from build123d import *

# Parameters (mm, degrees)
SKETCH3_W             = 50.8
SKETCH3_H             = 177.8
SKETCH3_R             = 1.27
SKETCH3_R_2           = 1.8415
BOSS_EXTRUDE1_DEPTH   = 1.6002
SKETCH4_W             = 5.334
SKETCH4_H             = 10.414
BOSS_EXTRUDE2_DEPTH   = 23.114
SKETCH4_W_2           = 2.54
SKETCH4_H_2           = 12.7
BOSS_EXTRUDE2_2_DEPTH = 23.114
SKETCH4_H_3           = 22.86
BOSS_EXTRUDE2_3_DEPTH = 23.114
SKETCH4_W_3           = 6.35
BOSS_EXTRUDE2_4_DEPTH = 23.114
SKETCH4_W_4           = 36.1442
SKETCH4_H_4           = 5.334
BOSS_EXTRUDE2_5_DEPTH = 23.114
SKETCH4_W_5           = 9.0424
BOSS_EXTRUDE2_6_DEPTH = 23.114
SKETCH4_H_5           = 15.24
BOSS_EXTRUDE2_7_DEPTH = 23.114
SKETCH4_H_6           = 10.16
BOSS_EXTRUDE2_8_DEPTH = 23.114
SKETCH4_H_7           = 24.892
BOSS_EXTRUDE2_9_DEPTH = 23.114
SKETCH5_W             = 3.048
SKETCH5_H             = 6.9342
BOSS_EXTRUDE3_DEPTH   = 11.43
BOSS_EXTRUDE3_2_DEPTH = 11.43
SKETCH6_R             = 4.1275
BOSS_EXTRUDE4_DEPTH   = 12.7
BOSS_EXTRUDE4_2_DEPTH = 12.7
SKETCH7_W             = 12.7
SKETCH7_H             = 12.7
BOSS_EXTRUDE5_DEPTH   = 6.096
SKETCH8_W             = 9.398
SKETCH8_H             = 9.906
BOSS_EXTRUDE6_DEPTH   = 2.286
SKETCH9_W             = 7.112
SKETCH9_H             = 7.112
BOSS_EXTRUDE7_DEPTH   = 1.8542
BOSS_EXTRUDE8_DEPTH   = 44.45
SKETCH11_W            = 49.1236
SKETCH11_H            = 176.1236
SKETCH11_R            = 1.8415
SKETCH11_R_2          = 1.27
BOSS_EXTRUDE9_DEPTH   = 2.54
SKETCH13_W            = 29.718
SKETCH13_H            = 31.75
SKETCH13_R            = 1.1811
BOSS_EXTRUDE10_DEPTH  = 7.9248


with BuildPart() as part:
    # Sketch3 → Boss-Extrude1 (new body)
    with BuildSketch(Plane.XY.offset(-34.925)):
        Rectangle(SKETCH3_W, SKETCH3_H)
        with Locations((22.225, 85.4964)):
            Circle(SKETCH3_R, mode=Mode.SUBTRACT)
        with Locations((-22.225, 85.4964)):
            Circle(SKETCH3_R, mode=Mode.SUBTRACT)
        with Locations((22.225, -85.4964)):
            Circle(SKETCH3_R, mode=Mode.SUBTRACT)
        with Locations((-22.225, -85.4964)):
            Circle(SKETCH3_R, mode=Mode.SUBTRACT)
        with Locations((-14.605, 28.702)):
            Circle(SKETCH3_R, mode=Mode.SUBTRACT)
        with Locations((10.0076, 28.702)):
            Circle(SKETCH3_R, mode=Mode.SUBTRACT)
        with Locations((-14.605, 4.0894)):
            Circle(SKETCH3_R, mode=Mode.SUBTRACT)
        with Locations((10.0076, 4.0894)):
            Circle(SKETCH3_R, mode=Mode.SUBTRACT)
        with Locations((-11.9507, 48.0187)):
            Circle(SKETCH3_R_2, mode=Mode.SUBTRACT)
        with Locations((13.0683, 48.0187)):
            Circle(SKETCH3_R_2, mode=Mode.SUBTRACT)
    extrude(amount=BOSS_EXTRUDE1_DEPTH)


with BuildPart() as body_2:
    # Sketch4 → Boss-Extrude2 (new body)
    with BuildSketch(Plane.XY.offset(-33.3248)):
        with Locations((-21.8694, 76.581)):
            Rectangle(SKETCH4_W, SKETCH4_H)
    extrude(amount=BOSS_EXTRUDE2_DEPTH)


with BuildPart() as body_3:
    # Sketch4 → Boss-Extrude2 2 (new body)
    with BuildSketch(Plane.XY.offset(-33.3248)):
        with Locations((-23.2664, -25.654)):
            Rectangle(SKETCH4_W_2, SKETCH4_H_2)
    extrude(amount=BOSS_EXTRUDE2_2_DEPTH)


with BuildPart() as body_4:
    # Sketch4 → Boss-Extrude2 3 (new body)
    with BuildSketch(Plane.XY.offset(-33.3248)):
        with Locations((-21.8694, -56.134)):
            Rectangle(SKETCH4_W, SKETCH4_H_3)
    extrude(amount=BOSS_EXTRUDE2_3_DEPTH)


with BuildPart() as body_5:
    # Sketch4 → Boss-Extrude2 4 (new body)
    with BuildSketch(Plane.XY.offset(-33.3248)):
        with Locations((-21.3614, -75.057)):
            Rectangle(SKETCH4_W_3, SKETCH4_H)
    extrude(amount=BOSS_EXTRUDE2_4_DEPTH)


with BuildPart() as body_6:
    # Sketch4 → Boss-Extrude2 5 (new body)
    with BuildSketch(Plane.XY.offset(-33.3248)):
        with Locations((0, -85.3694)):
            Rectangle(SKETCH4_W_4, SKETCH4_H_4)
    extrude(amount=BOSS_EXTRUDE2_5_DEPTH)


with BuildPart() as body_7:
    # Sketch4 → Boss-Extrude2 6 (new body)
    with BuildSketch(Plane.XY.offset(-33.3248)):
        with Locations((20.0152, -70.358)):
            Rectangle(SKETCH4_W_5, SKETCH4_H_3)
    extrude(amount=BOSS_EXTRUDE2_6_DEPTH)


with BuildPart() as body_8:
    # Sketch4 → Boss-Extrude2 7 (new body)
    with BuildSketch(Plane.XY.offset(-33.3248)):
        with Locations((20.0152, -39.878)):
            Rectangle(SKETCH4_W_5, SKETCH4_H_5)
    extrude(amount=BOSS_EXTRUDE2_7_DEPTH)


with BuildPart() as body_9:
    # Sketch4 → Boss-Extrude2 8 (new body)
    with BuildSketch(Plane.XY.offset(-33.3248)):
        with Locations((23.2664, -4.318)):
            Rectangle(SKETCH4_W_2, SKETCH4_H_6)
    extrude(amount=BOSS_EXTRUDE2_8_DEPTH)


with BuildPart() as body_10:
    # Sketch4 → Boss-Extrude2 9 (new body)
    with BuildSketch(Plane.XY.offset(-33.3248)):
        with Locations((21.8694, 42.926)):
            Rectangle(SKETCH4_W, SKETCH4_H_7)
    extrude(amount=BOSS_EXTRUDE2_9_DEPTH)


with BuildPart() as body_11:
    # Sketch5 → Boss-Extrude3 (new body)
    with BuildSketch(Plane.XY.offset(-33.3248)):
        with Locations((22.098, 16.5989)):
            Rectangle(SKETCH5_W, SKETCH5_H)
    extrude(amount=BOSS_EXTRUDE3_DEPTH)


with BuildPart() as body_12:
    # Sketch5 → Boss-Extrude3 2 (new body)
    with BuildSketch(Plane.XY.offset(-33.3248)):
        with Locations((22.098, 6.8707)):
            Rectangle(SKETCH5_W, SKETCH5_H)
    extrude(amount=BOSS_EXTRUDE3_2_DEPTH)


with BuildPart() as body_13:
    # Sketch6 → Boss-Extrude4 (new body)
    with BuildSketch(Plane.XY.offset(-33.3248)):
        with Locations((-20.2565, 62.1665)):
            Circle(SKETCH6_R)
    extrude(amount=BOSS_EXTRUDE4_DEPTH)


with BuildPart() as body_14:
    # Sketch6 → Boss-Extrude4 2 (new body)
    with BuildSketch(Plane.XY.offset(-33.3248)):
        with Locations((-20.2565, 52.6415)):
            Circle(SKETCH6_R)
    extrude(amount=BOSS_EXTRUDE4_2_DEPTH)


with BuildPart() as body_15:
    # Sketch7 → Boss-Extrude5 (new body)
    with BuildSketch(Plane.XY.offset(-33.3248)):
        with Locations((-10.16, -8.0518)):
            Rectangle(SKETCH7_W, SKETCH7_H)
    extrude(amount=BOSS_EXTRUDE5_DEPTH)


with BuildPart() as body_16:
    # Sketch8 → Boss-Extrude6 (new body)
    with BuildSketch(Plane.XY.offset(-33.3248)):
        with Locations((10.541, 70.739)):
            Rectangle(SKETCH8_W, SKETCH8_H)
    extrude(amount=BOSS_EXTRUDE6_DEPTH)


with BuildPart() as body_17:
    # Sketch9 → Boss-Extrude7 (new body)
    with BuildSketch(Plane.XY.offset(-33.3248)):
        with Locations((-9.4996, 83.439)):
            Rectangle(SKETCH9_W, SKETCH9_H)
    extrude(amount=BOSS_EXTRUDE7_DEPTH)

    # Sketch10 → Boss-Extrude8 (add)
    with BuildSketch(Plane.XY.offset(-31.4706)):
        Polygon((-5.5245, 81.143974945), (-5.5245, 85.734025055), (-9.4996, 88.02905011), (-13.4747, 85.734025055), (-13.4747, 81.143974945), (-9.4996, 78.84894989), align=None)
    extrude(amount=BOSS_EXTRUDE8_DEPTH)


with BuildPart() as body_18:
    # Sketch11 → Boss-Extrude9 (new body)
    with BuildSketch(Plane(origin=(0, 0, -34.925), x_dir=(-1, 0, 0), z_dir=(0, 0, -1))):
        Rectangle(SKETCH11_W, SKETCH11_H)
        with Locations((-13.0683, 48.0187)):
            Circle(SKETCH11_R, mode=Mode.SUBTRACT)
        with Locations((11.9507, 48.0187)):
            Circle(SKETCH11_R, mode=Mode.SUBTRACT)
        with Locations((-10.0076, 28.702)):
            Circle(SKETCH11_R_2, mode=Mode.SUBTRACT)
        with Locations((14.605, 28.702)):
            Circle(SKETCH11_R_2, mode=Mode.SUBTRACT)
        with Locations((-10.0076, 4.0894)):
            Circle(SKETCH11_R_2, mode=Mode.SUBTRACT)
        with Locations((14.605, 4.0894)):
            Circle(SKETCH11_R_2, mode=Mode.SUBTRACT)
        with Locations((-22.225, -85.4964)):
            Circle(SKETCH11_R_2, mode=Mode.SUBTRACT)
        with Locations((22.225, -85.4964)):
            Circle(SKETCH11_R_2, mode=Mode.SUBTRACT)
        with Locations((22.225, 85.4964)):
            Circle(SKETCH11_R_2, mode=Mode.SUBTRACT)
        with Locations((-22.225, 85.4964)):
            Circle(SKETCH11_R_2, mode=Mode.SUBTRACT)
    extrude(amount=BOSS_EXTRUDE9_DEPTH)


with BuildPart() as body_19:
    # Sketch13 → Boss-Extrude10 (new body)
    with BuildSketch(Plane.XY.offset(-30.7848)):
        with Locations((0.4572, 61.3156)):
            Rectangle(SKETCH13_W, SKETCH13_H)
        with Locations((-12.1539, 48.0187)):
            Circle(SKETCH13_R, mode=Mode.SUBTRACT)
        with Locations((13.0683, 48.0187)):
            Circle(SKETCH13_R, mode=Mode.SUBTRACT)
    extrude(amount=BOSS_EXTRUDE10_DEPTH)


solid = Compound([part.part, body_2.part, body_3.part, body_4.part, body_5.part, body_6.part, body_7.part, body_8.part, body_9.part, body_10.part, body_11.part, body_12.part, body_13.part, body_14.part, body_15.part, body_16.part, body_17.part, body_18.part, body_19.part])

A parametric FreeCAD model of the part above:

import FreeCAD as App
import Part
import Sketcher
Q = App.Units.Quantity


def add_polygon(sketch, points):
    """Adds a closed chain of lines whose ends are joined by coincident constraints."""
    first, n = sketch.GeometryCount, len(points)
    for a, b in zip(points, points[1:] + points[:1]):
        sketch.addGeometry(Part.LineSegment(App.Vector(*a, 0), App.Vector(*b, 0)), False)
    for i in range(n):
        sketch.addConstraint(Sketcher.Constraint("Coincident", first + i, 2, first + (i + 1) % n, 1))

doc = App.newDocument("Part")
body = doc.addObject("PartDesign::Body", "Body")

# Sketch on XY plane
sketch1 = doc.addObject("Sketcher::SketchObject", "Sketch")
body.addObject(sketch1)
sketch1.AttachmentSupport = (doc.XY_Plane, [""])
sketch1.MapMode = "FlatFace"
sketch1.AttachmentOffset = App.Placement(App.Vector(0, 0, -1.375 * 25.4), App.Rotation())
add_polygon(sketch1, [(-25.4, 88.9), (-25.4, -88.9), (25.4, -88.9), (25.4, 88.9)])  # lines 0-3
sketch1.addGeometry(Part.Circle(App.Vector(-22.225, -85.4964, 0), App.Vector(0, 0, 1), 1.27), False)  # 4
sketch1.addGeometry(Part.Circle(App.Vector(22.225, -85.4964, 0), App.Vector(0, 0, 1), 1.27), False)  # 5
sketch1.addGeometry(Part.Circle(App.Vector(-14.605, 4.0894, 0), App.Vector(0, 0, 1), 1.27), False)  # 6
sketch1.addGeometry(Part.Circle(App.Vector(-14.605, 28.702, 0), App.Vector(0, 0, 1), 1.27), False)  # 7
sketch1.addGeometry(Part.Circle(App.Vector(-11.9507, 48.0187, 0), App.Vector(0, 0, 1), 1.8415), False)  # 8
sketch1.addGeometry(Part.Circle(App.Vector(-22.225, 85.4964, 0), App.Vector(0, 0, 1), 1.27), False)  # 9
sketch1.addGeometry(Part.Circle(App.Vector(10.0076, 4.0894, 0), App.Vector(0, 0, 1), 1.27), False)  # 10
sketch1.addGeometry(Part.Circle(App.Vector(10.0076, 28.702, 0), App.Vector(0, 0, 1), 1.27), False)  # 11
sketch1.addGeometry(Part.Circle(App.Vector(13.0683, 48.0187, 0), App.Vector(0, 0, 1), 1.8415), False)  # 12
sketch1.addGeometry(Part.Circle(App.Vector(22.225, 85.4964, 0), App.Vector(0, 0, 1), 1.27), False)  # 13
sketch1.addConstraint(Sketcher.Constraint("Vertical", 0))
sketch1.addConstraint(Sketcher.Constraint("Horizontal", 1))
sketch1.addConstraint(Sketcher.Constraint("Vertical", 2))
sketch1.addConstraint(Sketcher.Constraint("Horizontal", 3))
sketch1.addConstraint(Sketcher.Constraint("Equal", 4, 5))
sketch1.addConstraint(Sketcher.Constraint("Equal", 5, 6))
sketch1.addConstraint(Sketcher.Constraint("Equal", 6, 7))
sketch1.addConstraint(Sketcher.Constraint("Equal", 7, 9))
sketch1.addConstraint(Sketcher.Constraint("Equal", 9, 10))
sketch1.addConstraint(Sketcher.Constraint("Equal", 10, 11))
sketch1.addConstraint(Sketcher.Constraint("Equal", 8, 12))
sketch1.addConstraint(Sketcher.Constraint("Equal", 11, 13))
sketch1.addConstraint(Sketcher.Constraint("Symmetric", 5, 3, 9, 3, -1, 1))
sketch1.addConstraint(Sketcher.Constraint("Symmetric", 4, 3, 13, 3, -1, 1))
sketch1.addConstraint(Sketcher.Constraint("Symmetric", 0, 2, 2, 2, -1, 1))
sketch1.addConstraint(Sketcher.Constraint("Symmetric", 4, 3, 5, 3, -2))
sketch1.addConstraint(Sketcher.Constraint("Horizontal", 6, 3, 10, 3))
sketch1.addConstraint(Sketcher.Constraint("Horizontal", 7, 3, 11, 3))
sketch1.addConstraint(Sketcher.Constraint("Horizontal", 8, 3, 12, 3))
sketch1.addConstraint(Sketcher.Constraint("Vertical", 6, 3, 7, 3))
sketch1.addConstraint(Sketcher.Constraint("Vertical", 10, 3, 11, 3))
sketch1.addConstraint(Sketcher.Constraint("Diameter", 4, Q("0.1 in")))
sketch1.addConstraint(Sketcher.Constraint("DistanceX", 1, 1, 1, 2, Q("2 in")))
sketch1.addConstraint(Sketcher.Constraint("DistanceY", 0, 2, 0, 1, Q("7 in")))
sketch1.addConstraint(Sketcher.Constraint("Diameter", 8, Q("0.145 in")))
sketch1.addConstraint(Sketcher.Constraint("DistanceX", 4, 3, 6, 3, Q("0.3 in")))
sketch1.addConstraint(Sketcher.Constraint("DistanceY", -1, 1, 7, 3, Q("1.13 in")))
sketch1.addConstraint(Sketcher.Constraint("DistanceX", 4, 3, 5, 3, Q("1.75 in")))
sketch1.addConstraint(Sketcher.Constraint("DistanceY", 4, 3, -1, 1, Q("3.366 in")))
sketch1.addConstraint(Sketcher.Constraint("DistanceY", -1, 1, 6, 3, Q("0.161 in")))
sketch1.addConstraint(Sketcher.Constraint("DistanceX", -1, 1, 10, 3, Q("0.394 in")))
sketch1.addConstraint(Sketcher.Constraint("DistanceX", 8, 3, 12, 3, Q("0.985 in")))
sketch1.addConstraint(Sketcher.Constraint("DistanceX", 8, 3, -1, 1, Q("0.4705 in")))
sketch1.addConstraint(Sketcher.Constraint("DistanceY", -1, 1, 8, 3, Q("1.8905 in")))
pad1 = doc.addObject("PartDesign::Pad", "Pad")
body.addObject(pad1)
pad1.Profile = sketch1
pad1.Length = Q("0.063 in")
body2 = doc.addObject("PartDesign::Body", "Body001")

# Sketch on XY plane
sketch2 = doc.addObject("Sketcher::SketchObject", "Sketch001")
body2.addObject(sketch2)
sketch2.AttachmentSupport = (doc.getObject("XY_Plane001"), [""])
sketch2.MapMode = "FlatFace"
sketch2.AttachmentOffset = App.Placement(App.Vector(0, 0, -1.312 * 25.4), App.Rotation())
add_polygon(sketch2, [(-24.5364, 81.788), (-24.5364, 71.374), (-19.2024, 71.374), (-19.2024, 81.788)])  # lines 0-3
sketch2.addConstraint(Sketcher.Constraint("Vertical", 0))
sketch2.addConstraint(Sketcher.Constraint("Horizontal", 1))
sketch2.addConstraint(Sketcher.Constraint("Vertical", 2))
sketch2.addConstraint(Sketcher.Constraint("Horizontal", 3))
sketch2.addConstraint(Sketcher.Constraint("DistanceX", 1, 1, 1, 2, Q("0.21 in")))
sketch2.addConstraint(Sketcher.Constraint("DistanceY", 0, 2, 0, 1, Q("0.41 in")))
sketch2.addConstraint(Sketcher.Constraint("DistanceY", -1, 1, 0, 2, Q("2.81 in")))
sketch2.addConstraint(Sketcher.Constraint("DistanceX", 0, 2, -1, 1, Q("0.966 in")))
pad2 = doc.addObject("PartDesign::Pad", "Pad001")
body2.addObject(pad2)
pad2.Profile = sketch2
pad2.Length = Q("0.91 in")
body3 = doc.addObject("PartDesign::Body", "Body002")

# Sketch on XY plane
sketch3 = doc.addObject("Sketcher::SketchObject", "Sketch002")
body3.addObject(sketch3)
sketch3.AttachmentSupport = (doc.getObject("XY_Plane002"), [""])
sketch3.MapMode = "FlatFace"
sketch3.AttachmentOffset = App.Placement(App.Vector(0, 0, -1.312 * 25.4), App.Rotation())
add_polygon(sketch3, [(-24.5364, -19.304), (-24.5364, -32.004), (-21.9964, -32.004), (-21.9964, -19.304)])  # lines 0-3
sketch3.addConstraint(Sketcher.Constraint("Vertical", 0))
sketch3.addConstraint(Sketcher.Constraint("Horizontal", 1))
sketch3.addConstraint(Sketcher.Constraint("Vertical", 2))
sketch3.addConstraint(Sketcher.Constraint("Horizontal", 3))
sketch3.addConstraint(Sketcher.Constraint("DistanceX", 1, 1, 1, 2, Q("0.1 in")))
sketch3.addConstraint(Sketcher.Constraint("DistanceY", 0, 2, 0, 1, Q("0.5 in")))
sketch3.addConstraint(Sketcher.Constraint("DistanceY", 0, 2, -1, 1, Q("1.26 in")))
sketch3.addConstraint(Sketcher.Constraint("DistanceX", 0, 2, -1, 1, Q("0.966 in")))
pad3 = doc.addObject("PartDesign::Pad", "Pad002")
body3.addObject(pad3)
pad3.Profile = sketch3
pad3.Length = Q("0.91 in")
body4 = doc.addObject("PartDesign::Body", "Body003")

# Sketch on XY plane
sketch4 = doc.addObject("Sketcher::SketchObject", "Sketch003")
body4.addObject(sketch4)
sketch4.AttachmentSupport = (doc.getObject("XY_Plane003"), [""])
sketch4.MapMode = "FlatFace"
sketch4.AttachmentOffset = App.Placement(App.Vector(0, 0, -1.312 * 25.4), App.Rotation())
add_polygon(sketch4, [(-24.5364, -44.704), (-24.5364, -67.564), (-19.2024, -67.564), (-19.2024, -44.704)])  # lines 0-3
sketch4.addConstraint(Sketcher.Constraint("Vertical", 0))
sketch4.addConstraint(Sketcher.Constraint("Horizontal", 1))
sketch4.addConstraint(Sketcher.Constraint("Vertical", 2))
sketch4.addConstraint(Sketcher.Constraint("Horizontal", 3))
sketch4.addConstraint(Sketcher.Constraint("DistanceY", 0, 2, 0, 1, Q("0.9 in")))
sketch4.addConstraint(Sketcher.Constraint("DistanceX", 1, 1, 1, 2, Q("0.21 in")))
sketch4.addConstraint(Sketcher.Constraint("DistanceY", 0, 2, -1, 1, Q("2.66 in")))
sketch4.addConstraint(Sketcher.Constraint("DistanceX", 0, 2, -1, 1, Q("0.966 in")))
pad4 = doc.addObject("PartDesign::Pad", "Pad003")
body4.addObject(pad4)
pad4.Profile = sketch4
pad4.Length = Q("0.91 in")
body5 = doc.addObject("PartDesign::Body", "Body004")

# Sketch on XY plane
sketch5 = doc.addObject("Sketcher::SketchObject", "Sketch004")
body5.addObject(sketch5)
sketch5.AttachmentSupport = (doc.getObject("XY_Plane004"), [""])
sketch5.MapMode = "FlatFace"
sketch5.AttachmentOffset = App.Placement(App.Vector(0, 0, -1.312 * 25.4), App.Rotation())
add_polygon(sketch5, [(-24.5364, -69.85), (-24.5364, -80.264), (-18.1864, -80.264), (-18.1864, -69.85)])  # lines 0-3
sketch5.addConstraint(Sketcher.Constraint("Vertical", 0))
sketch5.addConstraint(Sketcher.Constraint("Horizontal", 1))
sketch5.addConstraint(Sketcher.Constraint("Vertical", 2))
sketch5.addConstraint(Sketcher.Constraint("Horizontal", 3))
sketch5.addConstraint(Sketcher.Constraint("DistanceX", 1, 1, 1, 2, Q("0.25 in")))
sketch5.addConstraint(Sketcher.Constraint("DistanceY", 0, 2, 0, 1, Q("0.41 in")))
sketch5.addConstraint(Sketcher.Constraint("DistanceY", 0, 2, -1, 1, Q("3.16 in")))
sketch5.addConstraint(Sketcher.Constraint("DistanceX", 0, 2, -1, 1, Q("0.966 in")))
pad5 = doc.addObject("PartDesign::Pad", "Pad004")
body5.addObject(pad5)
pad5.Profile = sketch5
pad5.Length = Q("0.91 in")
body6 = doc.addObject("PartDesign::Body", "Body005")

# Sketch on XY plane
sketch6 = doc.addObject("Sketcher::SketchObject", "Sketch005")
body6.addObject(sketch6)
sketch6.AttachmentSupport = (doc.getObject("XY_Plane005"), [""])
sketch6.MapMode = "FlatFace"
sketch6.AttachmentOffset = App.Placement(App.Vector(0, 0, -1.312 * 25.4), App.Rotation())
add_polygon(sketch6, [(-18.0721, -82.7024), (-18.0721, -88.0364), (18.0721, -88.0364), (18.0721, -82.7024)])  # lines 0-3
sketch6.addConstraint(Sketcher.Constraint("Vertical", 0))
sketch6.addConstraint(Sketcher.Constraint("Horizontal", 1))
sketch6.addConstraint(Sketcher.Constraint("Vertical", 2))
sketch6.addConstraint(Sketcher.Constraint("Horizontal", 3))
sketch6.addConstraint(Sketcher.Constraint("DistanceY", 0, 2, 0, 1, Q("0.21 in")))
sketch6.addConstraint(Sketcher.Constraint("DistanceX", 1, 1, 1, 2, Q("1.423 in")))
sketch6.addConstraint(Sketcher.Constraint("DistanceY", 0, 2, -1, 1, Q("3.466 in")))
sketch6.addConstraint(Sketcher.Constraint("DistanceX", 0, 2, -1, 1, Q("0.7115 in")))
pad6 = doc.addObject("PartDesign::Pad", "Pad005")
body6.addObject(pad6)
pad6.Profile = sketch6
pad6.Length = Q("0.91 in")
body7 = doc.addObject("PartDesign::Body", "Body006")

# Sketch on XY plane
sketch7 = doc.addObject("Sketcher::SketchObject", "Sketch006")
body7.addObject(sketch7)
sketch7.AttachmentSupport = (doc.getObject("XY_Plane006"), [""])
sketch7.MapMode = "FlatFace"
sketch7.AttachmentOffset = App.Placement(App.Vector(0, 0, -1.312 * 25.4), App.Rotation())
add_polygon(sketch7, [(15.494, -58.928), (15.494, -81.788), (24.5364, -81.788), (24.5364, -58.928)])  # lines 0-3
sketch7.addConstraint(Sketcher.Constraint("Vertical", 0))
sketch7.addConstraint(Sketcher.Constraint("Horizontal", 1))
sketch7.addConstraint(Sketcher.Constraint("Vertical", 2))
sketch7.addConstraint(Sketcher.Constraint("Horizontal", 3))
sketch7.addConstraint(Sketcher.Constraint("DistanceY", 0, 2, 0, 1, Q("0.9 in")))
sketch7.addConstraint(Sketcher.Constraint("DistanceX", 1, 1, 1, 2, Q("0.356 in")))
sketch7.addConstraint(Sketcher.Constraint("DistanceX", -1, 1, 0, 2, Q("0.61 in")))
sketch7.addConstraint(Sketcher.Constraint("DistanceY", 0, 2, -1, 1, Q("3.22 in")))
pad7 = doc.addObject("PartDesign::Pad", "Pad006")
body7.addObject(pad7)
pad7.Profile = sketch7
pad7.Length = Q("0.91 in")
body8 = doc.addObject("PartDesign::Body", "Body007")

# Sketch on XY plane
sketch8 = doc.addObject("Sketcher::SketchObject", "Sketch007")
body8.addObject(sketch8)
sketch8.AttachmentSupport = (doc.getObject("XY_Plane007"), [""])
sketch8.MapMode = "FlatFace"
sketch8.AttachmentOffset = App.Placement(App.Vector(0, 0, -1.312 * 25.4), App.Rotation())
add_polygon(sketch8, [(15.494, -32.258), (15.494, -47.498), (24.5364, -47.498), (24.5364, -32.258)])  # lines 0-3
sketch8.addConstraint(Sketcher.Constraint("Vertical", 0))
sketch8.addConstraint(Sketcher.Constraint("Horizontal", 1))
sketch8.addConstraint(Sketcher.Constraint("Vertical", 2))
sketch8.addConstraint(Sketcher.Constraint("Horizontal", 3))
sketch8.addConstraint(Sketcher.Constraint("DistanceY", 0, 2, 0, 1, Q("0.6 in")))
sketch8.addConstraint(Sketcher.Constraint("DistanceX", 1, 1, 1, 2, Q("0.356 in")))
sketch8.addConstraint(Sketcher.Constraint("DistanceX", -1, 1, 0, 2, Q("0.61 in")))
sketch8.addConstraint(Sketcher.Constraint("DistanceY", 0, 2, -1, 1, Q("1.87 in")))
pad8 = doc.addObject("PartDesign::Pad", "Pad007")
body8.addObject(pad8)
pad8.Profile = sketch8
pad8.Length = Q("0.91 in")
body9 = doc.addObject("PartDesign::Body", "Body008")

# Sketch on XY plane
sketch9 = doc.addObject("Sketcher::SketchObject", "Sketch008")
body9.addObject(sketch9)
sketch9.AttachmentSupport = (doc.getObject("XY_Plane008"), [""])
sketch9.MapMode = "FlatFace"
sketch9.AttachmentOffset = App.Placement(App.Vector(0, 0, -1.312 * 25.4), App.Rotation())
add_polygon(sketch9, [(21.9964, 0.762), (21.9964, -9.398), (24.5364, -9.398), (24.5364, 0.762)])  # lines 0-3
sketch9.addConstraint(Sketcher.Constraint("Vertical", 0))
sketch9.addConstraint(Sketcher.Constraint("Horizontal", 1))
sketch9.addConstraint(Sketcher.Constraint("Vertical", 2))
sketch9.addConstraint(Sketcher.Constraint("Horizontal", 3))
sketch9.addConstraint(Sketcher.Constraint("DistanceX", 1, 1, 1, 2, Q("0.1 in")))
sketch9.addConstraint(Sketcher.Constraint("DistanceY", 0, 2, 0, 1, Q("0.4 in")))
sketch9.addConstraint(Sketcher.Constraint("DistanceY", 0, 2, -1, 1, Q("0.37 in")))
sketch9.addConstraint(Sketcher.Constraint("DistanceX", -1, 1, 0, 2, Q("0.866 in")))
pad9 = doc.addObject("PartDesign::Pad", "Pad008")
body9.addObject(pad9)
pad9.Profile = sketch9
pad9.Length = Q("0.91 in")
body10 = doc.addObject("PartDesign::Body", "Body009")

# Sketch on XY plane
sketch10 = doc.addObject("Sketcher::SketchObject", "Sketch009")
body10.addObject(sketch10)
sketch10.AttachmentSupport = (doc.getObject("XY_Plane009"), [""])
sketch10.MapMode = "FlatFace"
sketch10.AttachmentOffset = App.Placement(App.Vector(0, 0, -1.312 * 25.4), App.Rotation())
add_polygon(sketch10, [(19.2024, 55.372), (19.2024, 30.48), (24.5364, 30.48), (24.5364, 55.372)])  # lines 0-3
sketch10.addConstraint(Sketcher.Constraint("Vertical", 0))
sketch10.addConstraint(Sketcher.Constraint("Horizontal", 1))
sketch10.addConstraint(Sketcher.Constraint("Vertical", 2))
sketch10.addConstraint(Sketcher.Constraint("Horizontal", 3))
sketch10.addConstraint(Sketcher.Constraint("DistanceX", 1, 1, 1, 2, Q("0.21 in")))
sketch10.addConstraint(Sketcher.Constraint("DistanceY", 0, 2, 0, 1, Q("0.98 in")))
sketch10.addConstraint(Sketcher.Constraint("DistanceY", -1, 1, 0, 2, Q("1.2 in")))
sketch10.addConstraint(Sketcher.Constraint("DistanceX", -1, 1, 0, 2, Q("0.756 in")))
pad10 = doc.addObject("PartDesign::Pad", "Pad009")
body10.addObject(pad10)
pad10.Profile = sketch10
pad10.Length = Q("0.91 in")
body11 = doc.addObject("PartDesign::Body", "Body010")

# Sketch on XY plane
sketch11 = doc.addObject("Sketcher::SketchObject", "Sketch010")
body11.addObject(sketch11)
sketch11.AttachmentSupport = (doc.getObject("XY_Plane010"), [""])
sketch11.MapMode = "FlatFace"
sketch11.AttachmentOffset = App.Placement(App.Vector(0, 0, -1.312 * 25.4), App.Rotation())
add_polygon(sketch11, [(20.574, 20.066), (20.574, 13.1318), (23.622, 13.1318), (23.622, 20.066)])  # lines 0-3
sketch11.addConstraint(Sketcher.Constraint("Vertical", 0))
sketch11.addConstraint(Sketcher.Constraint("Horizontal", 1))
sketch11.addConstraint(Sketcher.Constraint("Vertical", 2))
sketch11.addConstraint(Sketcher.Constraint("Horizontal", 3))
sketch11.addConstraint(Sketcher.Constraint("DistanceX", 1, 1, 1, 2, Q("0.12 in")))
sketch11.addConstraint(Sketcher.Constraint("DistanceY", 0, 2, 0, 1, Q("0.273 in")))
sketch11.addConstraint(Sketcher.Constraint("DistanceX", -1, 1, 0, 2, Q("0.81 in")))
sketch11.addConstraint(Sketcher.Constraint("DistanceY", -1, 1, 2, 2, Q("0.79 in")))
pad11 = doc.addObject("PartDesign::Pad", "Pad010")
body11.addObject(pad11)
pad11.Profile = sketch11
pad11.Length = Q("0.45 in")
body12 = doc.addObject("PartDesign::Body", "Body011")

# Sketch on XY plane
sketch12 = doc.addObject("Sketcher::SketchObject", "Sketch011")
body12.addObject(sketch12)
sketch12.AttachmentSupport = (doc.getObject("XY_Plane011"), [""])
sketch12.MapMode = "FlatFace"
sketch12.AttachmentOffset = App.Placement(App.Vector(0, 0, -1.312 * 25.4), App.Rotation())
add_polygon(sketch12, [(20.574, 10.3378), (20.574, 3.4036), (23.622, 3.4036), (23.622, 10.3378)])  # lines 0-3
sketch12.addConstraint(Sketcher.Constraint("Vertical", 0))
sketch12.addConstraint(Sketcher.Constraint("Horizontal", 1))
sketch12.addConstraint(Sketcher.Constraint("Vertical", 2))
sketch12.addConstraint(Sketcher.Constraint("Horizontal", 3))
sketch12.addConstraint(Sketcher.Constraint("DistanceX", 1, 1, 1, 2, Q("0.12 in")))
sketch12.addConstraint(Sketcher.Constraint("DistanceY", 0, 2, 0, 1, Q("0.273 in")))
sketch12.addConstraint(Sketcher.Constraint("DistanceX", -1, 1, 0, 2, Q("0.81 in")))
sketch12.addConstraint(Sketcher.Constraint("DistanceY", -1, 1, 0, 2, Q("0.134 in")))
pad12 = doc.addObject("PartDesign::Pad", "Pad011")
body12.addObject(pad12)
pad12.Profile = sketch12
pad12.Length = Q("0.45 in")
body13 = doc.addObject("PartDesign::Body", "Body012")

# Sketch on XY plane
sketch13 = doc.addObject("Sketcher::SketchObject", "Sketch012")
body13.addObject(sketch13)
sketch13.AttachmentSupport = (doc.getObject("XY_Plane012"), [""])
sketch13.MapMode = "FlatFace"
sketch13.AttachmentOffset = App.Placement(App.Vector(0, 0, -1.312 * 25.4), App.Rotation())
sketch13.addGeometry(Part.Circle(App.Vector(-20.2565, 62.1665, 0), App.Vector(0, 0, 1), 4.1275), False)
sketch13.addConstraint(Sketcher.Constraint("Diameter", 0, Q("0.325 in")))
sketch13.addConstraint(Sketcher.Constraint("DistanceX", 0, 3, -1, 1, Q("0.7975 in")))
sketch13.addConstraint(Sketcher.Constraint("DistanceY", -1, 1, 0, 3, Q("2.4475 in")))
pad13 = doc.addObject("PartDesign::Pad", "Pad012")
body13.addObject(pad13)
pad13.Profile = sketch13
pad13.Length = Q("0.5 in")
body14 = doc.addObject("PartDesign::Body", "Body013")

# Sketch on XY plane
sketch14 = doc.addObject("Sketcher::SketchObject", "Sketch013")
body14.addObject(sketch14)
sketch14.AttachmentSupport = (doc.getObject("XY_Plane013"), [""])
sketch14.MapMode = "FlatFace"
sketch14.AttachmentOffset = App.Placement(App.Vector(0, 0, -1.312 * 25.4), App.Rotation())
sketch14.addGeometry(Part.Circle(App.Vector(-20.2565, 52.6415, 0), App.Vector(0, 0, 1), 4.1275), False)
sketch14.addConstraint(Sketcher.Constraint("Diameter", 0, Q("0.325 in")))
sketch14.addConstraint(Sketcher.Constraint("DistanceX", 0, 3, -1, 1, Q("0.7975 in")))
sketch14.addConstraint(Sketcher.Constraint("DistanceY", -1, 1, 0, 3, Q("2.0725 in")))
pad14 = doc.addObject("PartDesign::Pad", "Pad013")
body14.addObject(pad14)
pad14.Profile = sketch14
pad14.Length = Q("0.5 in")
body15 = doc.addObject("PartDesign::Body", "Body014")

# Sketch on XY plane
sketch15 = doc.addObject("Sketcher::SketchObject", "Sketch014")
body15.addObject(sketch15)
sketch15.AttachmentSupport = (doc.getObject("XY_Plane014"), [""])
sketch15.MapMode = "FlatFace"
sketch15.AttachmentOffset = App.Placement(App.Vector(0, 0, -1.312 * 25.4), App.Rotation())
add_polygon(sketch15, [(-16.51, -1.7018), (-16.51, -14.4018), (-3.81, -14.4018), (-3.81, -1.7018)])  # lines 0-3
sketch15.addConstraint(Sketcher.Constraint("Vertical", 0))
sketch15.addConstraint(Sketcher.Constraint("Horizontal", 1))
sketch15.addConstraint(Sketcher.Constraint("Vertical", 2))
sketch15.addConstraint(Sketcher.Constraint("Horizontal", 3))
sketch15.addConstraint(Sketcher.Constraint("Equal", 3, 0))
sketch15.addConstraint(Sketcher.Constraint("DistanceX", 1, 1, 1, 2, Q("0.5 in")))
sketch15.addConstraint(Sketcher.Constraint("DistanceX", 0, 2, -1, 1, Q("0.65 in")))
sketch15.addConstraint(Sketcher.Constraint("DistanceY", 0, 2, -1, 1, Q("0.567 in")))
pad15 = doc.addObject("PartDesign::Pad", "Pad014")
body15.addObject(pad15)
pad15.Profile = sketch15
pad15.Length = Q("0.24 in")
body16 = doc.addObject("PartDesign::Body", "Body015")

# Sketch on XY plane
sketch16 = doc.addObject("Sketcher::SketchObject", "Sketch015")
body16.addObject(sketch16)
sketch16.AttachmentSupport = (doc.getObject("XY_Plane015"), [""])
sketch16.MapMode = "FlatFace"
sketch16.AttachmentOffset = App.Placement(App.Vector(0, 0, -1.312 * 25.4), App.Rotation())
add_polygon(sketch16, [(5.842, 75.692), (5.842, 65.786), (15.24, 65.786), (15.24, 75.692)])  # lines 0-3
sketch16.addConstraint(Sketcher.Constraint("Vertical", 0))
sketch16.addConstraint(Sketcher.Constraint("Horizontal", 1))
sketch16.addConstraint(Sketcher.Constraint("Vertical", 2))
sketch16.addConstraint(Sketcher.Constraint("Horizontal", 3))
sketch16.addConstraint(Sketcher.Constraint("DistanceX", 1, 1, 1, 2, Q("0.37 in")))
sketch16.addConstraint(Sketcher.Constraint("DistanceY", 0, 2, 0, 1, Q("0.39 in")))
sketch16.addConstraint(Sketcher.Constraint("DistanceX", -1, 1, 1, 2, Q("0.6 in")))
sketch16.addConstraint(Sketcher.Constraint("DistanceY", -1, 1, 0, 2, Q("2.59 in")))
pad16 = doc.addObject("PartDesign::Pad", "Pad015")
body16.addObject(pad16)
pad16.Profile = sketch16
pad16.Length = Q("0.09 in")
body17 = doc.addObject("PartDesign::Body", "Body016")

# Sketch on XY plane
sketch17 = doc.addObject("Sketcher::SketchObject", "Sketch016")
body17.addObject(sketch17)
sketch17.AttachmentSupport = (doc.getObject("XY_Plane016"), [""])
sketch17.MapMode = "FlatFace"
sketch17.AttachmentOffset = App.Placement(App.Vector(0, 0, -1.312 * 25.4), App.Rotation())
add_polygon(sketch17, [(-13.0556, 86.995), (-13.0556, 79.883), (-5.9436, 79.883), (-5.9436, 86.995)])  # lines 0-3
sketch17.addConstraint(Sketcher.Constraint("Vertical", 0))
sketch17.addConstraint(Sketcher.Constraint("Horizontal", 1))
sketch17.addConstraint(Sketcher.Constraint("Vertical", 2))
sketch17.addConstraint(Sketcher.Constraint("Horizontal", 3))
sketch17.addConstraint(Sketcher.Constraint("Equal", 3, 0))
sketch17.addConstraint(Sketcher.Constraint("DistanceX", 1, 1, 1, 2, Q("0.28 in")))
sketch17.addConstraint(Sketcher.Constraint("DistanceX", 0, 2, -1, 1, Q("0.514 in")))
sketch17.addConstraint(Sketcher.Constraint("DistanceY", -1, 1, 0, 2, Q("3.145 in")))
pad17 = doc.addObject("PartDesign::Pad", "Pad016")
body17.addObject(pad17)
pad17.Profile = sketch17
pad17.Length = Q("0.073 in")

# Sketch on XY plane
sketch18 = doc.addObject("Sketcher::SketchObject", "Sketch017")
body17.addObject(sketch18)
sketch18.AttachmentSupport = (doc.getObject("XY_Plane016"), [""])
sketch18.MapMode = "FlatFace"
sketch18.AttachmentOffset = App.Placement(App.Vector(0, 0, -1.239 * 25.4), App.Rotation())
add_polygon(sketch18, [(-5.5245, 81.143975), (-5.5245, 85.734025), (-9.4996, 88.02905), (-13.4747, 85.734025), (-13.4747, 81.143975), (-9.4996, 78.84895)])  # lines 0-5
sketch18.addConstraint(Sketcher.Constraint("Vertical", 0))
sketch18.addConstraint(Sketcher.Constraint("Vertical", 3))
sketch18.addConstraint(Sketcher.Constraint("Parallel", 1, 4))
sketch18.addConstraint(Sketcher.Constraint("Parallel", 2, 5))
sketch18.addConstraint(Sketcher.Constraint("Horizontal", 0, 2, 2, 2))
sketch18.addConstraint(Sketcher.Constraint("Horizontal", 3, 2, 5, 2))
sketch18.addConstraint(Sketcher.Constraint("Vertical", 1, 2, 4, 2))
sketch18.addConstraint(Sketcher.Constraint("Angle", 1, Q("150 deg")))
sketch18.addConstraint(Sketcher.Constraint("DistanceX", 1, 2, -1, 1, Q("0.374 in")))
sketch18.addConstraint(Sketcher.Constraint("DistanceX", 2, 2, 0, 2, Q("0.313 in")))
sketch18.addConstraint(Sketcher.Constraint("DistanceY", 0, 1, 0, 2, 4.59005))
sketch18.addConstraint(Sketcher.Constraint("DistanceY", -1, 1, 1, 2, 88.02905))
pad18 = doc.addObject("PartDesign::Pad", "Pad017")
body17.addObject(pad18)
pad18.Profile = sketch18
pad18.Length = Q("1.75 in")
body18 = doc.addObject("PartDesign::Body", "Body017")

# Sketch on XY plane
sketch19 = doc.addObject("Sketcher::SketchObject", "Sketch018")
body18.addObject(sketch19)
sketch19.AttachmentSupport = (doc.getObject("XY_Plane017"), [""])
sketch19.MapMode = "FlatFace"
sketch19.AttachmentOffset = App.Placement(App.Vector(0, 0, -1.375 * 25.4), App.Rotation())
add_polygon(sketch19, [(24.5618, 88.0618), (24.5618, -88.0618), (-24.5618, -88.0618), (-24.5618, 88.0618)])  # lines 0-3
sketch19.addGeometry(Part.Circle(App.Vector(22.225, -85.4964, 0), App.Vector(0, 0, 1), 1.27), False)  # 4
sketch19.addGeometry(Part.Circle(App.Vector(-22.225, -85.4964, 0), App.Vector(0, 0, 1), 1.27), False)  # 5
sketch19.addGeometry(Part.Circle(App.Vector(10.0076, 4.0894, 0), App.Vector(0, 0, 1), 1.27), False)  # 6
sketch19.addGeometry(Part.Circle(App.Vector(10.0076, 28.702, 0), App.Vector(0, 0, 1), 1.27), False)  # 7
sketch19.addGeometry(Part.Circle(App.Vector(13.0683, 48.0187, 0), App.Vector(0, 0, 1), 1.8415), False)  # 8
sketch19.addGeometry(Part.Circle(App.Vector(22.225, 85.4964, 0), App.Vector(0, 0, 1), 1.27), False)  # 9
sketch19.addGeometry(Part.Circle(App.Vector(-14.605, 4.0894, 0), App.Vector(0, 0, 1), 1.27), False)  # 10
sketch19.addGeometry(Part.Circle(App.Vector(-14.605, 28.702, 0), App.Vector(0, 0, 1), 1.27), False)  # 11
sketch19.addGeometry(Part.Circle(App.Vector(-11.9507, 48.0187, 0), App.Vector(0, 0, 1), 1.8415), False)  # 12
sketch19.addGeometry(Part.Circle(App.Vector(-22.225, 85.4964, 0), App.Vector(0, 0, 1), 1.27), False)  # 13
sketch19.addConstraint(Sketcher.Constraint("Vertical", 0))
sketch19.addConstraint(Sketcher.Constraint("Horizontal", 1))
sketch19.addConstraint(Sketcher.Constraint("Vertical", 2))
sketch19.addConstraint(Sketcher.Constraint("Horizontal", 3))
sketch19.addConstraint(Sketcher.Constraint("Equal", 4, 5))
sketch19.addConstraint(Sketcher.Constraint("Equal", 5, 6))
sketch19.addConstraint(Sketcher.Constraint("Equal", 6, 7))
sketch19.addConstraint(Sketcher.Constraint("Equal", 7, 9))
sketch19.addConstraint(Sketcher.Constraint("Equal", 9, 10))
sketch19.addConstraint(Sketcher.Constraint("Equal", 10, 11))
sketch19.addConstraint(Sketcher.Constraint("Equal", 8, 12))
sketch19.addConstraint(Sketcher.Constraint("Equal", 11, 13))
sketch19.addConstraint(Sketcher.Constraint("Symmetric", 5, 3, 9, 3, -1, 1))
sketch19.addConstraint(Sketcher.Constraint("Symmetric", 4, 3, 13, 3, -1, 1))
sketch19.addConstraint(Sketcher.Constraint("Symmetric", 0, 2, 2, 2, -1, 1))
sketch19.addConstraint(Sketcher.Constraint("Symmetric", 4, 3, 5, 3, -2))
sketch19.addConstraint(Sketcher.Constraint("Horizontal", 6, 3, 10, 3))
sketch19.addConstraint(Sketcher.Constraint("Horizontal", 7, 3, 11, 3))
sketch19.addConstraint(Sketcher.Constraint("Horizontal", 8, 3, 12, 3))
sketch19.addConstraint(Sketcher.Constraint("Vertical", 6, 3, 7, 3))
sketch19.addConstraint(Sketcher.Constraint("Vertical", 10, 3, 11, 3))
sketch19.addConstraint(Sketcher.Constraint("Diameter", 4, Q("0.1 in")))
sketch19.addConstraint(Sketcher.Constraint("Diameter", 8, Q("0.145 in")))
sketch19.addConstraint(Sketcher.Constraint("DistanceX", 5, 3, 10, 3, Q("0.3 in")))
sketch19.addConstraint(Sketcher.Constraint("DistanceX", 1, 2, 1, 1, Q("1.934 in")))
sketch19.addConstraint(Sketcher.Constraint("DistanceY", 0, 2, 0, 1, Q("6.934 in")))
sketch19.addConstraint(Sketcher.Constraint("DistanceY", -1, 1, 7, 3, Q("1.13 in")))
sketch19.addConstraint(Sketcher.Constraint("DistanceX", 5, 3, 4, 3, Q("1.75 in")))
sketch19.addConstraint(Sketcher.Constraint("DistanceY", 4, 3, -1, 1, Q("3.366 in")))
sketch19.addConstraint(Sketcher.Constraint("DistanceX", -1, 1, 6, 3, Q("0.394 in")))
sketch19.addConstraint(Sketcher.Constraint("DistanceY", -1, 1, 6, 3, Q("0.161 in")))
sketch19.addConstraint(Sketcher.Constraint("DistanceX", 12, 3, 8, 3, Q("0.985 in")))
sketch19.addConstraint(Sketcher.Constraint("DistanceX", 12, 3, 3, 2, Q("1.4375 in")))
sketch19.addConstraint(Sketcher.Constraint("DistanceY", -1, 1, 8, 3, Q("1.8905 in")))
pad19 = doc.addObject("PartDesign::Pad", "Pad018")
body18.addObject(pad19)
pad19.Profile = sketch19
pad19.Length = Q("0.1 in")
pad19.Reversed = True
body19 = doc.addObject("PartDesign::Body", "Body018")

# Sketch on XY plane
sketch20 = doc.addObject("Sketcher::SketchObject", "Sketch019")
body19.addObject(sketch20)
sketch20.AttachmentSupport = (doc.getObject("XY_Plane018"), [""])
sketch20.MapMode = "FlatFace"
sketch20.AttachmentOffset = App.Placement(App.Vector(0, 0, -1.212 * 25.4), App.Rotation())
add_polygon(sketch20, [(-14.4018, 77.1906), (-14.4018, 45.4406), (15.3162, 45.4406), (15.3162, 77.1906)])  # lines 0-3
sketch20.addGeometry(Part.Circle(App.Vector(-12.1539, 48.0187, 0), App.Vector(0, 0, 1), 1.1811), False)  # 4
sketch20.addGeometry(Part.Circle(App.Vector(13.0683, 48.0187, 0), App.Vector(0, 0, 1), 1.1811), False)  # 5
sketch20.addConstraint(Sketcher.Constraint("Vertical", 0))
sketch20.addConstraint(Sketcher.Constraint("Horizontal", 1))
sketch20.addConstraint(Sketcher.Constraint("Vertical", 2))
sketch20.addConstraint(Sketcher.Constraint("Horizontal", 3))
sketch20.addConstraint(Sketcher.Constraint("Equal", 4, 5))
sketch20.addConstraint(Sketcher.Constraint("Horizontal", 4, 3, 5, 3))
sketch20.addConstraint(Sketcher.Constraint("Diameter", 4, Q("0.093 in")))
sketch20.addConstraint(Sketcher.Constraint("DistanceX", 1, 1, 1, 2, Q("1.17 in")))
sketch20.addConstraint(Sketcher.Constraint("DistanceY", 0, 2, 0, 1, Q("1.25 in")))
sketch20.addConstraint(Sketcher.Constraint("DistanceX", 0, 2, -1, 1, Q("0.567 in")))
sketch20.addConstraint(Sketcher.Constraint("DistanceY", -1, 1, 0, 2, Q("1.789 in")))
sketch20.addConstraint(Sketcher.Constraint("DistanceX", 4, 3, 5, 3, Q("0.993 in")))
sketch20.addConstraint(Sketcher.Constraint("DistanceX", 4, 3, -1, 1, Q("0.4785 in")))
sketch20.addConstraint(Sketcher.Constraint("DistanceY", -1, 1, 4, 3, Q("1.8905 in")))
pad20 = doc.addObject("PartDesign::Pad", "Pad019")
body19.addObject(pad20)
pad20.Profile = sketch20
pad20.Length = Q("0.312 in")

doc.recompute()
